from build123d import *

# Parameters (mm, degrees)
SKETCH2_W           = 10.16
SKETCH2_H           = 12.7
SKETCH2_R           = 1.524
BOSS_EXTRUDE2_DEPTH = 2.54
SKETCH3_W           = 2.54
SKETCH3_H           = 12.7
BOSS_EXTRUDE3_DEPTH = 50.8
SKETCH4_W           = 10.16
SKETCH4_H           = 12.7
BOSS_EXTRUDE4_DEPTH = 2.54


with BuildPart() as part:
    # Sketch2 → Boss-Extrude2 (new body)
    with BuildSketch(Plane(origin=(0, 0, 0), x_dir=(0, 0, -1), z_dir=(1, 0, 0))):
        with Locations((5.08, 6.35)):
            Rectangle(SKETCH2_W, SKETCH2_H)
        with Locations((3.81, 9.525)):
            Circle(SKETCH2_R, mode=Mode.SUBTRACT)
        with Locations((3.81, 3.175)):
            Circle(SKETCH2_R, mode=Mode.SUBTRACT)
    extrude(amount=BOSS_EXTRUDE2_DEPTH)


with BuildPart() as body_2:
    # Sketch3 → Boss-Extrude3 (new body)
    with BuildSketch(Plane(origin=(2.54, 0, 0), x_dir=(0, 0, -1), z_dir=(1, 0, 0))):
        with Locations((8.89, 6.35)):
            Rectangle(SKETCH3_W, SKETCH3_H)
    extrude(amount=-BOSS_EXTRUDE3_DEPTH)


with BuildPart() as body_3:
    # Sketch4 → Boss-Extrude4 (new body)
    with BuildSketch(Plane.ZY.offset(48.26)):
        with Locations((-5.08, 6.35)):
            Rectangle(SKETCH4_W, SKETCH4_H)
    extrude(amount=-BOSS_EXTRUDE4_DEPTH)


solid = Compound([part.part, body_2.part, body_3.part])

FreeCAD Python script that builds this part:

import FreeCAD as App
import Part
import Sketcher

V = App.Vector
Q = App.Units.Quantity

doc = App.newDocument("Part")
body = doc.addObject("PartDesign::Body", "Body")

sketch1 = body.newObject("Sketcher::SketchObject", "Sketch")
sketch1.AttachmentSupport = (doc.getObject("YZ_Plane"), [""])
sketch1.MapMode = "FlatFace"
sketch1.addGeometry(Part.LineSegment(V(12.7, 0, 0), V(0, 0, 0)), False)
sketch1.addGeometry(Part.LineSegment(V(0, 0, 0), V(0, -10.2, 0)), False)
sketch1.addGeometry(Part.LineSegment(V(0, -10.2, 0), V(12.7, -10.2, 0)), False)
sketch1.addGeometry(Part.LineSegment(V(12.7, -10.2, 0), V(12.7, 0, 0)), False)
sketch1.addGeometry(Part.Circle(V(3.2, -3.8, 0), V(0, 0, 1), 1.5), False)
sketch1.addGeometry(Part.Circle(V(9.5, -3.8, 0), V(0, 0, 1), 1.5), False)
sketch1.addConstraint(Sketcher.Constraint("Coincident", 0, 2, 1, 1))
sketch1.addConstraint(Sketcher.Constraint("Coincident", 1, 2, 2, 1))
sketch1.addConstraint(Sketcher.Constraint("Coincident", 2, 2, 3, 1))
sketch1.addConstraint(Sketcher.Constraint("Coincident", 3, 2, 0, 1))
sketch1.addConstraint(Sketcher.Constraint("Horizontal", 0))
sketch1.addConstraint(Sketcher.Constraint("Vertical", 1))
sketch1.addConstraint(Sketcher.Constraint("Horizontal", 2))
sketch1.addConstraint(Sketcher.Constraint("Vertical", 3))
sketch1.addConstraint(Sketcher.Constraint("Coincident", 0, 2, -1, 1))
sketch1.addConstraint(Sketcher.Constraint("Equal", 4, 5))
sketch1.addConstraint(Sketcher.Constraint("Horizontal", 4, 3, 5, 3))
sketch1.addConstraint(Sketcher.Constraint("Diameter", 4, Q("0.12 in")))
sketch1.addConstraint(Sketcher.Constraint("DistanceX", 0, 2, 0, 1, Q("0.5 in")))
sketch1.addConstraint(Sketcher.Constraint("DistanceY", 1, 2, 1, 1, Q("0.4 in")))
sketch1.addConstraint(Sketcher.Constraint("DistanceY", 4, 3, -1, 1, Q("0.15 in")))
sketch1.addConstraint(Sketcher.Constraint("DistanceX", 4, 3, 5, 3, Q("0.25 in")))
sketch1.addConstraint(Sketcher.Constraint("DistanceX", -1, 1, 4, 3, Q("0.125 in")))
pad1 = body.newObject("PartDesign::Pad", "Pad")
pad1.Profile = sketch1
pad1.Length = Q("0.1 in")
body2 = doc.addObject("PartDesign::Body", "Body001")

sketch2 = body2.newObject("Sketcher::SketchObject", "Sketch001")
sketch2.AttachmentSupport = (doc.getObject("YZ_Plane001"), [""])
sketch2.MapMode = "FlatFace"
sketch2.AttachmentOffset = App.Placement(V(0, 0, 0.1 * 25.4), App.Rotation())
sketch2.addGeometry(Part.LineSegment(V(12.7, -7.6, 0), V(0, -7.6, 0)), False)
sketch2.addGeometry(Part.LineSegment(V(0, -7.6, 0), V(0, -10.2, 0)), False)
sketch2.addGeometry(Part.LineSegment(V(0, -10.2, 0), V(12.7, -10.2, 0)), False)
sketch2.addGeometry(Part.LineSegment(V(12.7, -10.2, 0), V(12.7, -7.6, 0)), False)
sketch2.addConstraint(Sketcher.Constraint("Coincident", 0, 2, 1, 1))
sketch2.addConstraint(Sketcher.Constraint("Coincident", 1, 2, 2, 1))
sketch2.addConstraint(Sketcher.Constraint("Coincident", 2, 2, 3, 1))
sketch2.addConstraint(Sketcher.Constraint("Coincident", 3, 2, 0, 1))
sketch2.addConstraint(Sketcher.Constraint("Horizontal", 0))
sketch2.addConstraint(Sketcher.Constraint("Vertical", 1))
sketch2.addConstraint(Sketcher.Constraint("Horizontal", 2))
sketch2.addConstraint(Sketcher.Constraint("Vertical", 3))
sketch2.addConstraint(Sketcher.Constraint("PointOnObject", 0, 2, -2))
sketch2.addConstraint(Sketcher.Constraint("DistanceX", 0, 2, 0, 1, Q("0.5 in")))
sketch2.addConstraint(Sketcher.Constraint("DistanceY", 1, 2, 1, 1, Q("0.1 in")))
sketch2.addConstraint(Sketcher.Constraint("DistanceY", 0, 2, -1, 1, Q("0.3 in")))
pad2 = body2.newObject("PartDesign::Pad", "Pad001")
pad2.Profile = sketch2
pad2.Length = Q("2 in")
pad2.Reversed = True
body3 = doc.addObject("PartDesign::Body", "Body002")

sketch3 = body3.newObject("Sketcher::SketchObject", "Sketch002")
sketch3.AttachmentSupport = (doc.getObject("YZ_Plane002"), [""])
sketch3.MapMode = "FlatFace"
sketch3.AttachmentOffset = App.Placement(V(0, 0, -1.9 * 25.4), App.Rotation())
sketch3.addGeometry(Part.LineSegment(V(13, -10, 0), V(0, -10, 0)), False)
sketch3.addGeometry(Part.LineSegment(V(0, -10, 0), V(0, 0, 0)), False)
sketch3.addGeometry(Part.LineSegment(V(0, 0, 0), V(13, 0, 0)), False)
sketch3.addGeometry(Part.LineSegment(V(13, 0, 0), V(13, -10, 0)), False)
sketch3.addConstraint(Sketcher.Constraint("Coincident", 0, 2, 1, 1))
sketch3.addConstraint(Sketcher.Constraint("Coincident", 1, 2, 2, 1))
sketch3.addConstraint(Sketcher.Constraint("Coincident", 2, 2, 3, 1))
sketch3.addConstraint(Sketcher.Constraint("Coincident", 3, 2, 0, 1))
sketch3.addConstraint(Sketcher.Constraint("Horizontal", 0))
sketch3.addConstraint(Sketcher.Constraint("Vertical", 1))
sketch3.addConstraint(Sketcher.Constraint("Horizontal", 2))
sketch3.addConstraint(Sketcher.Constraint("Vertical", 3))
sketch3.addConstraint(Sketcher.Constraint("Coincident", 1, 2, -1, 1))
sketch3.addConstraint(Sketcher.Constraint("DistanceX", 0, 2, 0, 1, Q("0.5 in")))
sketch3.addConstraint(Sketcher.Constraint("DistanceY", 1, 1, 1, 2, Q("0.4 in")))
pad3 = body3.newObject("PartDesign::Pad", "Pad002")
pad3.Profile = sketch3
pad3.Length = Q("0.1 in")

doc.recompute()
